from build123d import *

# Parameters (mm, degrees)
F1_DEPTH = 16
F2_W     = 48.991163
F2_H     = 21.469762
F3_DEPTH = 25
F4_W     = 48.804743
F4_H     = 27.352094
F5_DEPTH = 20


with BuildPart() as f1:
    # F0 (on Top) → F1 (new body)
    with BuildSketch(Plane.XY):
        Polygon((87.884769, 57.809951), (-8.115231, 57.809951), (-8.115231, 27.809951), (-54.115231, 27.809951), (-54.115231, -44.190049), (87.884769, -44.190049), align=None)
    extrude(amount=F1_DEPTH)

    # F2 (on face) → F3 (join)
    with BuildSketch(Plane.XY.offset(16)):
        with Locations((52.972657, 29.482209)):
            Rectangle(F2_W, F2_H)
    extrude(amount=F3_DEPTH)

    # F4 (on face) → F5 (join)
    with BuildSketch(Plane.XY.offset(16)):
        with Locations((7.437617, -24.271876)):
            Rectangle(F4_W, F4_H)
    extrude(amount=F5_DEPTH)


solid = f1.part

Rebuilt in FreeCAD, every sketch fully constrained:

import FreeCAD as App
import Part
import Sketcher
from FreeCAD import Vector
Q = App.Units.Quantity

doc = App.newDocument("Part")
body = doc.addObject("PartDesign::Body", "Body")

# Sketch on XY plane
sketch1 = doc.addObject("Sketcher::SketchObject", "Sketch")
body.addObject(sketch1)
sketch1.AttachmentSupport = (doc.XY_Plane, [""])
sketch1.MapMode = "FlatFace"
sketch1.addGeometry([
    Part.LineSegment(Vector(88, 58, 0), Vector(-8, 58, 0)),  # 0
    Part.LineSegment(Vector(-8, 58, 0), Vector(-8, 28, 0)),  # 1
    Part.LineSegment(Vector(-8, 28, 0), Vector(-54, 28, 0)),  # 2
    Part.LineSegment(Vector(-54, 28, 0), Vector(-54, -44, 0)),  # 3
    Part.LineSegment(Vector(-54, -44, 0), Vector(88, -44, 0)),  # 4
    Part.LineSegment(Vector(88, -44, 0), Vector(88, 58, 0)),  # 5
], False)
sketch1.addConstraint([
    Sketcher.Constraint("Coincident", 0, 2, 1, 1),
    Sketcher.Constraint("Coincident", 1, 2, 2, 1),
    Sketcher.Constraint("Coincident", 2, 2, 3, 1),
    Sketcher.Constraint("Coincident", 3, 2, 4, 1),
    Sketcher.Constraint("Coincident", 4, 2, 5, 1),
    Sketcher.Constraint("Coincident", 5, 2, 0, 1),
    Sketcher.Constraint("Horizontal", 0),
    Sketcher.Constraint("Vertical", 1),
    Sketcher.Constraint("Horizontal", 2),
    Sketcher.Constraint("Vertical", 3),
    Sketcher.Constraint("Horizontal", 4),
    Sketcher.Constraint("Vertical", 5),
    Sketcher.Constraint("DistanceX", 0, 2, 0, 1, Q("96 mm")),
    Sketcher.Constraint("DistanceX", 2, 2, 2, 1, Q("46 mm")),
    Sketcher.Constraint("DistanceY", 1, 2, 1, 1, Q("30 mm")),
    Sketcher.Constraint("DistanceY", 3, 2, 3, 1, Q("72 mm")),
    Sketcher.Constraint("DistanceX", 0, 2, -1, 1, Q("8.115231 mm")),
    Sketcher.Constraint("DistanceY", -1, 1, 0, 2, Q("57.809951 mm")),
])
pad1 = doc.addObject("PartDesign::Pad", "Pad")
body.addObject(pad1)
pad1.Profile = sketch1
pad1.Length = 16

# Sketch on XY plane
sketch2 = doc.addObject("Sketcher::SketchObject", "Sketch001")
body.addObject(sketch2)
sketch2.AttachmentSupport = (doc.XY_Plane, [""])
sketch2.MapMode = "FlatFace"
sketch2.AttachmentOffset = App.Placement(Vector(0, 0, 16), App.Rotation())
sketch2.addGeometry([
    Part.LineSegment(Vector(28, 40, 0), Vector(28, 19, 0)),
    Part.LineSegment(Vector(28, 19, 0), Vector(77, 19, 0)),
    Part.LineSegment(Vector(77, 19, 0), Vector(77, 40, 0)),
    Part.LineSegment(Vector(77, 40, 0), Vector(28, 40, 0)),
], False)
sketch2.addConstraint([
    Sketcher.Constraint("Coincident", 0, 2, 1, 1),
    Sketcher.Constraint("Coincident", 1, 2, 2, 1),
    Sketcher.Constraint("Coincident", 2, 2, 3, 1),
    Sketcher.Constraint("Coincident", 3, 2, 0, 1),
    Sketcher.Constraint("Vertical", 0),
    Sketcher.Constraint("Horizontal", 1),
    Sketcher.Constraint("Vertical", 2),
    Sketcher.Constraint("Horizontal", 3),
    Sketcher.Constraint("DistanceY", 0, 2, 0, 1, Q("21.469762 mm")),
    Sketcher.Constraint("DistanceX", 1, 1, 1, 2, Q("48.991163 mm")),
    Sketcher.Constraint("DistanceX", -1, 1, 1, 2, Q("77.468238 mm")),
    Sketcher.Constraint("DistanceY", -1, 1, 2, 2, Q("40.21709 mm")),
])
pad2 = doc.addObject("PartDesign::Pad", "Pad001")
body.addObject(pad2)
pad2.Profile = sketch2
pad2.Length = 25

# Sketch on XY plane
sketch3 = doc.addObject("Sketcher::SketchObject", "Sketch002")
body.addObject(sketch3)
sketch3.AttachmentSupport = (doc.XY_Plane, [""])
sketch3.MapMode = "FlatFace"
sketch3.AttachmentOffset = App.Placement(Vector(0, 0, 16), App.Rotation())
sketch3.addGeometry([
    Part.LineSegment(Vector(-17, -11, 0), Vector(-17, -38, 0)),
    Part.LineSegment(Vector(-17, -38, 0), Vector(32, -38, 0)),
    Part.LineSegment(Vector(32, -38, 0), Vector(32, -11, 0)),
    Part.LineSegment(Vector(32, -11, 0), Vector(-17, -11, 0)),
], False)
sketch3.addConstraint([
    Sketcher.Constraint("Coincident", 0, 2, 1, 1),
    Sketcher.Constraint("Coincident", 1, 2, 2, 1),
    Sketcher.Constraint("Coincident", 2, 2, 3, 1),
    Sketcher.Constraint("Coincident", 3, 2, 0, 1),
    Sketcher.Constraint("Vertical", 0),
    Sketcher.Constraint("Horizontal", 1),
    Sketcher.Constraint("Vertical", 2),
    Sketcher.Constraint("Horizontal", 3),
    Sketcher.Constraint("DistanceX", 1, 1, 1, 2, Q("48.804743 mm")),
    Sketcher.Constraint("DistanceY", 0, 2, 0, 1, Q("27.352094 mm")),
    Sketcher.Constraint("DistanceX", -1, 1, 1, 2, Q("31.839989 mm")),
    Sketcher.Constraint("DistanceY", 2, 2, -1, 1, Q("10.595829 mm")),
])
pad3 = doc.addObject("PartDesign::Pad", "Pad002")
body.addObject(pad3)
pad3.Profile = sketch3
pad3.Length = 20

doc.recompute()
